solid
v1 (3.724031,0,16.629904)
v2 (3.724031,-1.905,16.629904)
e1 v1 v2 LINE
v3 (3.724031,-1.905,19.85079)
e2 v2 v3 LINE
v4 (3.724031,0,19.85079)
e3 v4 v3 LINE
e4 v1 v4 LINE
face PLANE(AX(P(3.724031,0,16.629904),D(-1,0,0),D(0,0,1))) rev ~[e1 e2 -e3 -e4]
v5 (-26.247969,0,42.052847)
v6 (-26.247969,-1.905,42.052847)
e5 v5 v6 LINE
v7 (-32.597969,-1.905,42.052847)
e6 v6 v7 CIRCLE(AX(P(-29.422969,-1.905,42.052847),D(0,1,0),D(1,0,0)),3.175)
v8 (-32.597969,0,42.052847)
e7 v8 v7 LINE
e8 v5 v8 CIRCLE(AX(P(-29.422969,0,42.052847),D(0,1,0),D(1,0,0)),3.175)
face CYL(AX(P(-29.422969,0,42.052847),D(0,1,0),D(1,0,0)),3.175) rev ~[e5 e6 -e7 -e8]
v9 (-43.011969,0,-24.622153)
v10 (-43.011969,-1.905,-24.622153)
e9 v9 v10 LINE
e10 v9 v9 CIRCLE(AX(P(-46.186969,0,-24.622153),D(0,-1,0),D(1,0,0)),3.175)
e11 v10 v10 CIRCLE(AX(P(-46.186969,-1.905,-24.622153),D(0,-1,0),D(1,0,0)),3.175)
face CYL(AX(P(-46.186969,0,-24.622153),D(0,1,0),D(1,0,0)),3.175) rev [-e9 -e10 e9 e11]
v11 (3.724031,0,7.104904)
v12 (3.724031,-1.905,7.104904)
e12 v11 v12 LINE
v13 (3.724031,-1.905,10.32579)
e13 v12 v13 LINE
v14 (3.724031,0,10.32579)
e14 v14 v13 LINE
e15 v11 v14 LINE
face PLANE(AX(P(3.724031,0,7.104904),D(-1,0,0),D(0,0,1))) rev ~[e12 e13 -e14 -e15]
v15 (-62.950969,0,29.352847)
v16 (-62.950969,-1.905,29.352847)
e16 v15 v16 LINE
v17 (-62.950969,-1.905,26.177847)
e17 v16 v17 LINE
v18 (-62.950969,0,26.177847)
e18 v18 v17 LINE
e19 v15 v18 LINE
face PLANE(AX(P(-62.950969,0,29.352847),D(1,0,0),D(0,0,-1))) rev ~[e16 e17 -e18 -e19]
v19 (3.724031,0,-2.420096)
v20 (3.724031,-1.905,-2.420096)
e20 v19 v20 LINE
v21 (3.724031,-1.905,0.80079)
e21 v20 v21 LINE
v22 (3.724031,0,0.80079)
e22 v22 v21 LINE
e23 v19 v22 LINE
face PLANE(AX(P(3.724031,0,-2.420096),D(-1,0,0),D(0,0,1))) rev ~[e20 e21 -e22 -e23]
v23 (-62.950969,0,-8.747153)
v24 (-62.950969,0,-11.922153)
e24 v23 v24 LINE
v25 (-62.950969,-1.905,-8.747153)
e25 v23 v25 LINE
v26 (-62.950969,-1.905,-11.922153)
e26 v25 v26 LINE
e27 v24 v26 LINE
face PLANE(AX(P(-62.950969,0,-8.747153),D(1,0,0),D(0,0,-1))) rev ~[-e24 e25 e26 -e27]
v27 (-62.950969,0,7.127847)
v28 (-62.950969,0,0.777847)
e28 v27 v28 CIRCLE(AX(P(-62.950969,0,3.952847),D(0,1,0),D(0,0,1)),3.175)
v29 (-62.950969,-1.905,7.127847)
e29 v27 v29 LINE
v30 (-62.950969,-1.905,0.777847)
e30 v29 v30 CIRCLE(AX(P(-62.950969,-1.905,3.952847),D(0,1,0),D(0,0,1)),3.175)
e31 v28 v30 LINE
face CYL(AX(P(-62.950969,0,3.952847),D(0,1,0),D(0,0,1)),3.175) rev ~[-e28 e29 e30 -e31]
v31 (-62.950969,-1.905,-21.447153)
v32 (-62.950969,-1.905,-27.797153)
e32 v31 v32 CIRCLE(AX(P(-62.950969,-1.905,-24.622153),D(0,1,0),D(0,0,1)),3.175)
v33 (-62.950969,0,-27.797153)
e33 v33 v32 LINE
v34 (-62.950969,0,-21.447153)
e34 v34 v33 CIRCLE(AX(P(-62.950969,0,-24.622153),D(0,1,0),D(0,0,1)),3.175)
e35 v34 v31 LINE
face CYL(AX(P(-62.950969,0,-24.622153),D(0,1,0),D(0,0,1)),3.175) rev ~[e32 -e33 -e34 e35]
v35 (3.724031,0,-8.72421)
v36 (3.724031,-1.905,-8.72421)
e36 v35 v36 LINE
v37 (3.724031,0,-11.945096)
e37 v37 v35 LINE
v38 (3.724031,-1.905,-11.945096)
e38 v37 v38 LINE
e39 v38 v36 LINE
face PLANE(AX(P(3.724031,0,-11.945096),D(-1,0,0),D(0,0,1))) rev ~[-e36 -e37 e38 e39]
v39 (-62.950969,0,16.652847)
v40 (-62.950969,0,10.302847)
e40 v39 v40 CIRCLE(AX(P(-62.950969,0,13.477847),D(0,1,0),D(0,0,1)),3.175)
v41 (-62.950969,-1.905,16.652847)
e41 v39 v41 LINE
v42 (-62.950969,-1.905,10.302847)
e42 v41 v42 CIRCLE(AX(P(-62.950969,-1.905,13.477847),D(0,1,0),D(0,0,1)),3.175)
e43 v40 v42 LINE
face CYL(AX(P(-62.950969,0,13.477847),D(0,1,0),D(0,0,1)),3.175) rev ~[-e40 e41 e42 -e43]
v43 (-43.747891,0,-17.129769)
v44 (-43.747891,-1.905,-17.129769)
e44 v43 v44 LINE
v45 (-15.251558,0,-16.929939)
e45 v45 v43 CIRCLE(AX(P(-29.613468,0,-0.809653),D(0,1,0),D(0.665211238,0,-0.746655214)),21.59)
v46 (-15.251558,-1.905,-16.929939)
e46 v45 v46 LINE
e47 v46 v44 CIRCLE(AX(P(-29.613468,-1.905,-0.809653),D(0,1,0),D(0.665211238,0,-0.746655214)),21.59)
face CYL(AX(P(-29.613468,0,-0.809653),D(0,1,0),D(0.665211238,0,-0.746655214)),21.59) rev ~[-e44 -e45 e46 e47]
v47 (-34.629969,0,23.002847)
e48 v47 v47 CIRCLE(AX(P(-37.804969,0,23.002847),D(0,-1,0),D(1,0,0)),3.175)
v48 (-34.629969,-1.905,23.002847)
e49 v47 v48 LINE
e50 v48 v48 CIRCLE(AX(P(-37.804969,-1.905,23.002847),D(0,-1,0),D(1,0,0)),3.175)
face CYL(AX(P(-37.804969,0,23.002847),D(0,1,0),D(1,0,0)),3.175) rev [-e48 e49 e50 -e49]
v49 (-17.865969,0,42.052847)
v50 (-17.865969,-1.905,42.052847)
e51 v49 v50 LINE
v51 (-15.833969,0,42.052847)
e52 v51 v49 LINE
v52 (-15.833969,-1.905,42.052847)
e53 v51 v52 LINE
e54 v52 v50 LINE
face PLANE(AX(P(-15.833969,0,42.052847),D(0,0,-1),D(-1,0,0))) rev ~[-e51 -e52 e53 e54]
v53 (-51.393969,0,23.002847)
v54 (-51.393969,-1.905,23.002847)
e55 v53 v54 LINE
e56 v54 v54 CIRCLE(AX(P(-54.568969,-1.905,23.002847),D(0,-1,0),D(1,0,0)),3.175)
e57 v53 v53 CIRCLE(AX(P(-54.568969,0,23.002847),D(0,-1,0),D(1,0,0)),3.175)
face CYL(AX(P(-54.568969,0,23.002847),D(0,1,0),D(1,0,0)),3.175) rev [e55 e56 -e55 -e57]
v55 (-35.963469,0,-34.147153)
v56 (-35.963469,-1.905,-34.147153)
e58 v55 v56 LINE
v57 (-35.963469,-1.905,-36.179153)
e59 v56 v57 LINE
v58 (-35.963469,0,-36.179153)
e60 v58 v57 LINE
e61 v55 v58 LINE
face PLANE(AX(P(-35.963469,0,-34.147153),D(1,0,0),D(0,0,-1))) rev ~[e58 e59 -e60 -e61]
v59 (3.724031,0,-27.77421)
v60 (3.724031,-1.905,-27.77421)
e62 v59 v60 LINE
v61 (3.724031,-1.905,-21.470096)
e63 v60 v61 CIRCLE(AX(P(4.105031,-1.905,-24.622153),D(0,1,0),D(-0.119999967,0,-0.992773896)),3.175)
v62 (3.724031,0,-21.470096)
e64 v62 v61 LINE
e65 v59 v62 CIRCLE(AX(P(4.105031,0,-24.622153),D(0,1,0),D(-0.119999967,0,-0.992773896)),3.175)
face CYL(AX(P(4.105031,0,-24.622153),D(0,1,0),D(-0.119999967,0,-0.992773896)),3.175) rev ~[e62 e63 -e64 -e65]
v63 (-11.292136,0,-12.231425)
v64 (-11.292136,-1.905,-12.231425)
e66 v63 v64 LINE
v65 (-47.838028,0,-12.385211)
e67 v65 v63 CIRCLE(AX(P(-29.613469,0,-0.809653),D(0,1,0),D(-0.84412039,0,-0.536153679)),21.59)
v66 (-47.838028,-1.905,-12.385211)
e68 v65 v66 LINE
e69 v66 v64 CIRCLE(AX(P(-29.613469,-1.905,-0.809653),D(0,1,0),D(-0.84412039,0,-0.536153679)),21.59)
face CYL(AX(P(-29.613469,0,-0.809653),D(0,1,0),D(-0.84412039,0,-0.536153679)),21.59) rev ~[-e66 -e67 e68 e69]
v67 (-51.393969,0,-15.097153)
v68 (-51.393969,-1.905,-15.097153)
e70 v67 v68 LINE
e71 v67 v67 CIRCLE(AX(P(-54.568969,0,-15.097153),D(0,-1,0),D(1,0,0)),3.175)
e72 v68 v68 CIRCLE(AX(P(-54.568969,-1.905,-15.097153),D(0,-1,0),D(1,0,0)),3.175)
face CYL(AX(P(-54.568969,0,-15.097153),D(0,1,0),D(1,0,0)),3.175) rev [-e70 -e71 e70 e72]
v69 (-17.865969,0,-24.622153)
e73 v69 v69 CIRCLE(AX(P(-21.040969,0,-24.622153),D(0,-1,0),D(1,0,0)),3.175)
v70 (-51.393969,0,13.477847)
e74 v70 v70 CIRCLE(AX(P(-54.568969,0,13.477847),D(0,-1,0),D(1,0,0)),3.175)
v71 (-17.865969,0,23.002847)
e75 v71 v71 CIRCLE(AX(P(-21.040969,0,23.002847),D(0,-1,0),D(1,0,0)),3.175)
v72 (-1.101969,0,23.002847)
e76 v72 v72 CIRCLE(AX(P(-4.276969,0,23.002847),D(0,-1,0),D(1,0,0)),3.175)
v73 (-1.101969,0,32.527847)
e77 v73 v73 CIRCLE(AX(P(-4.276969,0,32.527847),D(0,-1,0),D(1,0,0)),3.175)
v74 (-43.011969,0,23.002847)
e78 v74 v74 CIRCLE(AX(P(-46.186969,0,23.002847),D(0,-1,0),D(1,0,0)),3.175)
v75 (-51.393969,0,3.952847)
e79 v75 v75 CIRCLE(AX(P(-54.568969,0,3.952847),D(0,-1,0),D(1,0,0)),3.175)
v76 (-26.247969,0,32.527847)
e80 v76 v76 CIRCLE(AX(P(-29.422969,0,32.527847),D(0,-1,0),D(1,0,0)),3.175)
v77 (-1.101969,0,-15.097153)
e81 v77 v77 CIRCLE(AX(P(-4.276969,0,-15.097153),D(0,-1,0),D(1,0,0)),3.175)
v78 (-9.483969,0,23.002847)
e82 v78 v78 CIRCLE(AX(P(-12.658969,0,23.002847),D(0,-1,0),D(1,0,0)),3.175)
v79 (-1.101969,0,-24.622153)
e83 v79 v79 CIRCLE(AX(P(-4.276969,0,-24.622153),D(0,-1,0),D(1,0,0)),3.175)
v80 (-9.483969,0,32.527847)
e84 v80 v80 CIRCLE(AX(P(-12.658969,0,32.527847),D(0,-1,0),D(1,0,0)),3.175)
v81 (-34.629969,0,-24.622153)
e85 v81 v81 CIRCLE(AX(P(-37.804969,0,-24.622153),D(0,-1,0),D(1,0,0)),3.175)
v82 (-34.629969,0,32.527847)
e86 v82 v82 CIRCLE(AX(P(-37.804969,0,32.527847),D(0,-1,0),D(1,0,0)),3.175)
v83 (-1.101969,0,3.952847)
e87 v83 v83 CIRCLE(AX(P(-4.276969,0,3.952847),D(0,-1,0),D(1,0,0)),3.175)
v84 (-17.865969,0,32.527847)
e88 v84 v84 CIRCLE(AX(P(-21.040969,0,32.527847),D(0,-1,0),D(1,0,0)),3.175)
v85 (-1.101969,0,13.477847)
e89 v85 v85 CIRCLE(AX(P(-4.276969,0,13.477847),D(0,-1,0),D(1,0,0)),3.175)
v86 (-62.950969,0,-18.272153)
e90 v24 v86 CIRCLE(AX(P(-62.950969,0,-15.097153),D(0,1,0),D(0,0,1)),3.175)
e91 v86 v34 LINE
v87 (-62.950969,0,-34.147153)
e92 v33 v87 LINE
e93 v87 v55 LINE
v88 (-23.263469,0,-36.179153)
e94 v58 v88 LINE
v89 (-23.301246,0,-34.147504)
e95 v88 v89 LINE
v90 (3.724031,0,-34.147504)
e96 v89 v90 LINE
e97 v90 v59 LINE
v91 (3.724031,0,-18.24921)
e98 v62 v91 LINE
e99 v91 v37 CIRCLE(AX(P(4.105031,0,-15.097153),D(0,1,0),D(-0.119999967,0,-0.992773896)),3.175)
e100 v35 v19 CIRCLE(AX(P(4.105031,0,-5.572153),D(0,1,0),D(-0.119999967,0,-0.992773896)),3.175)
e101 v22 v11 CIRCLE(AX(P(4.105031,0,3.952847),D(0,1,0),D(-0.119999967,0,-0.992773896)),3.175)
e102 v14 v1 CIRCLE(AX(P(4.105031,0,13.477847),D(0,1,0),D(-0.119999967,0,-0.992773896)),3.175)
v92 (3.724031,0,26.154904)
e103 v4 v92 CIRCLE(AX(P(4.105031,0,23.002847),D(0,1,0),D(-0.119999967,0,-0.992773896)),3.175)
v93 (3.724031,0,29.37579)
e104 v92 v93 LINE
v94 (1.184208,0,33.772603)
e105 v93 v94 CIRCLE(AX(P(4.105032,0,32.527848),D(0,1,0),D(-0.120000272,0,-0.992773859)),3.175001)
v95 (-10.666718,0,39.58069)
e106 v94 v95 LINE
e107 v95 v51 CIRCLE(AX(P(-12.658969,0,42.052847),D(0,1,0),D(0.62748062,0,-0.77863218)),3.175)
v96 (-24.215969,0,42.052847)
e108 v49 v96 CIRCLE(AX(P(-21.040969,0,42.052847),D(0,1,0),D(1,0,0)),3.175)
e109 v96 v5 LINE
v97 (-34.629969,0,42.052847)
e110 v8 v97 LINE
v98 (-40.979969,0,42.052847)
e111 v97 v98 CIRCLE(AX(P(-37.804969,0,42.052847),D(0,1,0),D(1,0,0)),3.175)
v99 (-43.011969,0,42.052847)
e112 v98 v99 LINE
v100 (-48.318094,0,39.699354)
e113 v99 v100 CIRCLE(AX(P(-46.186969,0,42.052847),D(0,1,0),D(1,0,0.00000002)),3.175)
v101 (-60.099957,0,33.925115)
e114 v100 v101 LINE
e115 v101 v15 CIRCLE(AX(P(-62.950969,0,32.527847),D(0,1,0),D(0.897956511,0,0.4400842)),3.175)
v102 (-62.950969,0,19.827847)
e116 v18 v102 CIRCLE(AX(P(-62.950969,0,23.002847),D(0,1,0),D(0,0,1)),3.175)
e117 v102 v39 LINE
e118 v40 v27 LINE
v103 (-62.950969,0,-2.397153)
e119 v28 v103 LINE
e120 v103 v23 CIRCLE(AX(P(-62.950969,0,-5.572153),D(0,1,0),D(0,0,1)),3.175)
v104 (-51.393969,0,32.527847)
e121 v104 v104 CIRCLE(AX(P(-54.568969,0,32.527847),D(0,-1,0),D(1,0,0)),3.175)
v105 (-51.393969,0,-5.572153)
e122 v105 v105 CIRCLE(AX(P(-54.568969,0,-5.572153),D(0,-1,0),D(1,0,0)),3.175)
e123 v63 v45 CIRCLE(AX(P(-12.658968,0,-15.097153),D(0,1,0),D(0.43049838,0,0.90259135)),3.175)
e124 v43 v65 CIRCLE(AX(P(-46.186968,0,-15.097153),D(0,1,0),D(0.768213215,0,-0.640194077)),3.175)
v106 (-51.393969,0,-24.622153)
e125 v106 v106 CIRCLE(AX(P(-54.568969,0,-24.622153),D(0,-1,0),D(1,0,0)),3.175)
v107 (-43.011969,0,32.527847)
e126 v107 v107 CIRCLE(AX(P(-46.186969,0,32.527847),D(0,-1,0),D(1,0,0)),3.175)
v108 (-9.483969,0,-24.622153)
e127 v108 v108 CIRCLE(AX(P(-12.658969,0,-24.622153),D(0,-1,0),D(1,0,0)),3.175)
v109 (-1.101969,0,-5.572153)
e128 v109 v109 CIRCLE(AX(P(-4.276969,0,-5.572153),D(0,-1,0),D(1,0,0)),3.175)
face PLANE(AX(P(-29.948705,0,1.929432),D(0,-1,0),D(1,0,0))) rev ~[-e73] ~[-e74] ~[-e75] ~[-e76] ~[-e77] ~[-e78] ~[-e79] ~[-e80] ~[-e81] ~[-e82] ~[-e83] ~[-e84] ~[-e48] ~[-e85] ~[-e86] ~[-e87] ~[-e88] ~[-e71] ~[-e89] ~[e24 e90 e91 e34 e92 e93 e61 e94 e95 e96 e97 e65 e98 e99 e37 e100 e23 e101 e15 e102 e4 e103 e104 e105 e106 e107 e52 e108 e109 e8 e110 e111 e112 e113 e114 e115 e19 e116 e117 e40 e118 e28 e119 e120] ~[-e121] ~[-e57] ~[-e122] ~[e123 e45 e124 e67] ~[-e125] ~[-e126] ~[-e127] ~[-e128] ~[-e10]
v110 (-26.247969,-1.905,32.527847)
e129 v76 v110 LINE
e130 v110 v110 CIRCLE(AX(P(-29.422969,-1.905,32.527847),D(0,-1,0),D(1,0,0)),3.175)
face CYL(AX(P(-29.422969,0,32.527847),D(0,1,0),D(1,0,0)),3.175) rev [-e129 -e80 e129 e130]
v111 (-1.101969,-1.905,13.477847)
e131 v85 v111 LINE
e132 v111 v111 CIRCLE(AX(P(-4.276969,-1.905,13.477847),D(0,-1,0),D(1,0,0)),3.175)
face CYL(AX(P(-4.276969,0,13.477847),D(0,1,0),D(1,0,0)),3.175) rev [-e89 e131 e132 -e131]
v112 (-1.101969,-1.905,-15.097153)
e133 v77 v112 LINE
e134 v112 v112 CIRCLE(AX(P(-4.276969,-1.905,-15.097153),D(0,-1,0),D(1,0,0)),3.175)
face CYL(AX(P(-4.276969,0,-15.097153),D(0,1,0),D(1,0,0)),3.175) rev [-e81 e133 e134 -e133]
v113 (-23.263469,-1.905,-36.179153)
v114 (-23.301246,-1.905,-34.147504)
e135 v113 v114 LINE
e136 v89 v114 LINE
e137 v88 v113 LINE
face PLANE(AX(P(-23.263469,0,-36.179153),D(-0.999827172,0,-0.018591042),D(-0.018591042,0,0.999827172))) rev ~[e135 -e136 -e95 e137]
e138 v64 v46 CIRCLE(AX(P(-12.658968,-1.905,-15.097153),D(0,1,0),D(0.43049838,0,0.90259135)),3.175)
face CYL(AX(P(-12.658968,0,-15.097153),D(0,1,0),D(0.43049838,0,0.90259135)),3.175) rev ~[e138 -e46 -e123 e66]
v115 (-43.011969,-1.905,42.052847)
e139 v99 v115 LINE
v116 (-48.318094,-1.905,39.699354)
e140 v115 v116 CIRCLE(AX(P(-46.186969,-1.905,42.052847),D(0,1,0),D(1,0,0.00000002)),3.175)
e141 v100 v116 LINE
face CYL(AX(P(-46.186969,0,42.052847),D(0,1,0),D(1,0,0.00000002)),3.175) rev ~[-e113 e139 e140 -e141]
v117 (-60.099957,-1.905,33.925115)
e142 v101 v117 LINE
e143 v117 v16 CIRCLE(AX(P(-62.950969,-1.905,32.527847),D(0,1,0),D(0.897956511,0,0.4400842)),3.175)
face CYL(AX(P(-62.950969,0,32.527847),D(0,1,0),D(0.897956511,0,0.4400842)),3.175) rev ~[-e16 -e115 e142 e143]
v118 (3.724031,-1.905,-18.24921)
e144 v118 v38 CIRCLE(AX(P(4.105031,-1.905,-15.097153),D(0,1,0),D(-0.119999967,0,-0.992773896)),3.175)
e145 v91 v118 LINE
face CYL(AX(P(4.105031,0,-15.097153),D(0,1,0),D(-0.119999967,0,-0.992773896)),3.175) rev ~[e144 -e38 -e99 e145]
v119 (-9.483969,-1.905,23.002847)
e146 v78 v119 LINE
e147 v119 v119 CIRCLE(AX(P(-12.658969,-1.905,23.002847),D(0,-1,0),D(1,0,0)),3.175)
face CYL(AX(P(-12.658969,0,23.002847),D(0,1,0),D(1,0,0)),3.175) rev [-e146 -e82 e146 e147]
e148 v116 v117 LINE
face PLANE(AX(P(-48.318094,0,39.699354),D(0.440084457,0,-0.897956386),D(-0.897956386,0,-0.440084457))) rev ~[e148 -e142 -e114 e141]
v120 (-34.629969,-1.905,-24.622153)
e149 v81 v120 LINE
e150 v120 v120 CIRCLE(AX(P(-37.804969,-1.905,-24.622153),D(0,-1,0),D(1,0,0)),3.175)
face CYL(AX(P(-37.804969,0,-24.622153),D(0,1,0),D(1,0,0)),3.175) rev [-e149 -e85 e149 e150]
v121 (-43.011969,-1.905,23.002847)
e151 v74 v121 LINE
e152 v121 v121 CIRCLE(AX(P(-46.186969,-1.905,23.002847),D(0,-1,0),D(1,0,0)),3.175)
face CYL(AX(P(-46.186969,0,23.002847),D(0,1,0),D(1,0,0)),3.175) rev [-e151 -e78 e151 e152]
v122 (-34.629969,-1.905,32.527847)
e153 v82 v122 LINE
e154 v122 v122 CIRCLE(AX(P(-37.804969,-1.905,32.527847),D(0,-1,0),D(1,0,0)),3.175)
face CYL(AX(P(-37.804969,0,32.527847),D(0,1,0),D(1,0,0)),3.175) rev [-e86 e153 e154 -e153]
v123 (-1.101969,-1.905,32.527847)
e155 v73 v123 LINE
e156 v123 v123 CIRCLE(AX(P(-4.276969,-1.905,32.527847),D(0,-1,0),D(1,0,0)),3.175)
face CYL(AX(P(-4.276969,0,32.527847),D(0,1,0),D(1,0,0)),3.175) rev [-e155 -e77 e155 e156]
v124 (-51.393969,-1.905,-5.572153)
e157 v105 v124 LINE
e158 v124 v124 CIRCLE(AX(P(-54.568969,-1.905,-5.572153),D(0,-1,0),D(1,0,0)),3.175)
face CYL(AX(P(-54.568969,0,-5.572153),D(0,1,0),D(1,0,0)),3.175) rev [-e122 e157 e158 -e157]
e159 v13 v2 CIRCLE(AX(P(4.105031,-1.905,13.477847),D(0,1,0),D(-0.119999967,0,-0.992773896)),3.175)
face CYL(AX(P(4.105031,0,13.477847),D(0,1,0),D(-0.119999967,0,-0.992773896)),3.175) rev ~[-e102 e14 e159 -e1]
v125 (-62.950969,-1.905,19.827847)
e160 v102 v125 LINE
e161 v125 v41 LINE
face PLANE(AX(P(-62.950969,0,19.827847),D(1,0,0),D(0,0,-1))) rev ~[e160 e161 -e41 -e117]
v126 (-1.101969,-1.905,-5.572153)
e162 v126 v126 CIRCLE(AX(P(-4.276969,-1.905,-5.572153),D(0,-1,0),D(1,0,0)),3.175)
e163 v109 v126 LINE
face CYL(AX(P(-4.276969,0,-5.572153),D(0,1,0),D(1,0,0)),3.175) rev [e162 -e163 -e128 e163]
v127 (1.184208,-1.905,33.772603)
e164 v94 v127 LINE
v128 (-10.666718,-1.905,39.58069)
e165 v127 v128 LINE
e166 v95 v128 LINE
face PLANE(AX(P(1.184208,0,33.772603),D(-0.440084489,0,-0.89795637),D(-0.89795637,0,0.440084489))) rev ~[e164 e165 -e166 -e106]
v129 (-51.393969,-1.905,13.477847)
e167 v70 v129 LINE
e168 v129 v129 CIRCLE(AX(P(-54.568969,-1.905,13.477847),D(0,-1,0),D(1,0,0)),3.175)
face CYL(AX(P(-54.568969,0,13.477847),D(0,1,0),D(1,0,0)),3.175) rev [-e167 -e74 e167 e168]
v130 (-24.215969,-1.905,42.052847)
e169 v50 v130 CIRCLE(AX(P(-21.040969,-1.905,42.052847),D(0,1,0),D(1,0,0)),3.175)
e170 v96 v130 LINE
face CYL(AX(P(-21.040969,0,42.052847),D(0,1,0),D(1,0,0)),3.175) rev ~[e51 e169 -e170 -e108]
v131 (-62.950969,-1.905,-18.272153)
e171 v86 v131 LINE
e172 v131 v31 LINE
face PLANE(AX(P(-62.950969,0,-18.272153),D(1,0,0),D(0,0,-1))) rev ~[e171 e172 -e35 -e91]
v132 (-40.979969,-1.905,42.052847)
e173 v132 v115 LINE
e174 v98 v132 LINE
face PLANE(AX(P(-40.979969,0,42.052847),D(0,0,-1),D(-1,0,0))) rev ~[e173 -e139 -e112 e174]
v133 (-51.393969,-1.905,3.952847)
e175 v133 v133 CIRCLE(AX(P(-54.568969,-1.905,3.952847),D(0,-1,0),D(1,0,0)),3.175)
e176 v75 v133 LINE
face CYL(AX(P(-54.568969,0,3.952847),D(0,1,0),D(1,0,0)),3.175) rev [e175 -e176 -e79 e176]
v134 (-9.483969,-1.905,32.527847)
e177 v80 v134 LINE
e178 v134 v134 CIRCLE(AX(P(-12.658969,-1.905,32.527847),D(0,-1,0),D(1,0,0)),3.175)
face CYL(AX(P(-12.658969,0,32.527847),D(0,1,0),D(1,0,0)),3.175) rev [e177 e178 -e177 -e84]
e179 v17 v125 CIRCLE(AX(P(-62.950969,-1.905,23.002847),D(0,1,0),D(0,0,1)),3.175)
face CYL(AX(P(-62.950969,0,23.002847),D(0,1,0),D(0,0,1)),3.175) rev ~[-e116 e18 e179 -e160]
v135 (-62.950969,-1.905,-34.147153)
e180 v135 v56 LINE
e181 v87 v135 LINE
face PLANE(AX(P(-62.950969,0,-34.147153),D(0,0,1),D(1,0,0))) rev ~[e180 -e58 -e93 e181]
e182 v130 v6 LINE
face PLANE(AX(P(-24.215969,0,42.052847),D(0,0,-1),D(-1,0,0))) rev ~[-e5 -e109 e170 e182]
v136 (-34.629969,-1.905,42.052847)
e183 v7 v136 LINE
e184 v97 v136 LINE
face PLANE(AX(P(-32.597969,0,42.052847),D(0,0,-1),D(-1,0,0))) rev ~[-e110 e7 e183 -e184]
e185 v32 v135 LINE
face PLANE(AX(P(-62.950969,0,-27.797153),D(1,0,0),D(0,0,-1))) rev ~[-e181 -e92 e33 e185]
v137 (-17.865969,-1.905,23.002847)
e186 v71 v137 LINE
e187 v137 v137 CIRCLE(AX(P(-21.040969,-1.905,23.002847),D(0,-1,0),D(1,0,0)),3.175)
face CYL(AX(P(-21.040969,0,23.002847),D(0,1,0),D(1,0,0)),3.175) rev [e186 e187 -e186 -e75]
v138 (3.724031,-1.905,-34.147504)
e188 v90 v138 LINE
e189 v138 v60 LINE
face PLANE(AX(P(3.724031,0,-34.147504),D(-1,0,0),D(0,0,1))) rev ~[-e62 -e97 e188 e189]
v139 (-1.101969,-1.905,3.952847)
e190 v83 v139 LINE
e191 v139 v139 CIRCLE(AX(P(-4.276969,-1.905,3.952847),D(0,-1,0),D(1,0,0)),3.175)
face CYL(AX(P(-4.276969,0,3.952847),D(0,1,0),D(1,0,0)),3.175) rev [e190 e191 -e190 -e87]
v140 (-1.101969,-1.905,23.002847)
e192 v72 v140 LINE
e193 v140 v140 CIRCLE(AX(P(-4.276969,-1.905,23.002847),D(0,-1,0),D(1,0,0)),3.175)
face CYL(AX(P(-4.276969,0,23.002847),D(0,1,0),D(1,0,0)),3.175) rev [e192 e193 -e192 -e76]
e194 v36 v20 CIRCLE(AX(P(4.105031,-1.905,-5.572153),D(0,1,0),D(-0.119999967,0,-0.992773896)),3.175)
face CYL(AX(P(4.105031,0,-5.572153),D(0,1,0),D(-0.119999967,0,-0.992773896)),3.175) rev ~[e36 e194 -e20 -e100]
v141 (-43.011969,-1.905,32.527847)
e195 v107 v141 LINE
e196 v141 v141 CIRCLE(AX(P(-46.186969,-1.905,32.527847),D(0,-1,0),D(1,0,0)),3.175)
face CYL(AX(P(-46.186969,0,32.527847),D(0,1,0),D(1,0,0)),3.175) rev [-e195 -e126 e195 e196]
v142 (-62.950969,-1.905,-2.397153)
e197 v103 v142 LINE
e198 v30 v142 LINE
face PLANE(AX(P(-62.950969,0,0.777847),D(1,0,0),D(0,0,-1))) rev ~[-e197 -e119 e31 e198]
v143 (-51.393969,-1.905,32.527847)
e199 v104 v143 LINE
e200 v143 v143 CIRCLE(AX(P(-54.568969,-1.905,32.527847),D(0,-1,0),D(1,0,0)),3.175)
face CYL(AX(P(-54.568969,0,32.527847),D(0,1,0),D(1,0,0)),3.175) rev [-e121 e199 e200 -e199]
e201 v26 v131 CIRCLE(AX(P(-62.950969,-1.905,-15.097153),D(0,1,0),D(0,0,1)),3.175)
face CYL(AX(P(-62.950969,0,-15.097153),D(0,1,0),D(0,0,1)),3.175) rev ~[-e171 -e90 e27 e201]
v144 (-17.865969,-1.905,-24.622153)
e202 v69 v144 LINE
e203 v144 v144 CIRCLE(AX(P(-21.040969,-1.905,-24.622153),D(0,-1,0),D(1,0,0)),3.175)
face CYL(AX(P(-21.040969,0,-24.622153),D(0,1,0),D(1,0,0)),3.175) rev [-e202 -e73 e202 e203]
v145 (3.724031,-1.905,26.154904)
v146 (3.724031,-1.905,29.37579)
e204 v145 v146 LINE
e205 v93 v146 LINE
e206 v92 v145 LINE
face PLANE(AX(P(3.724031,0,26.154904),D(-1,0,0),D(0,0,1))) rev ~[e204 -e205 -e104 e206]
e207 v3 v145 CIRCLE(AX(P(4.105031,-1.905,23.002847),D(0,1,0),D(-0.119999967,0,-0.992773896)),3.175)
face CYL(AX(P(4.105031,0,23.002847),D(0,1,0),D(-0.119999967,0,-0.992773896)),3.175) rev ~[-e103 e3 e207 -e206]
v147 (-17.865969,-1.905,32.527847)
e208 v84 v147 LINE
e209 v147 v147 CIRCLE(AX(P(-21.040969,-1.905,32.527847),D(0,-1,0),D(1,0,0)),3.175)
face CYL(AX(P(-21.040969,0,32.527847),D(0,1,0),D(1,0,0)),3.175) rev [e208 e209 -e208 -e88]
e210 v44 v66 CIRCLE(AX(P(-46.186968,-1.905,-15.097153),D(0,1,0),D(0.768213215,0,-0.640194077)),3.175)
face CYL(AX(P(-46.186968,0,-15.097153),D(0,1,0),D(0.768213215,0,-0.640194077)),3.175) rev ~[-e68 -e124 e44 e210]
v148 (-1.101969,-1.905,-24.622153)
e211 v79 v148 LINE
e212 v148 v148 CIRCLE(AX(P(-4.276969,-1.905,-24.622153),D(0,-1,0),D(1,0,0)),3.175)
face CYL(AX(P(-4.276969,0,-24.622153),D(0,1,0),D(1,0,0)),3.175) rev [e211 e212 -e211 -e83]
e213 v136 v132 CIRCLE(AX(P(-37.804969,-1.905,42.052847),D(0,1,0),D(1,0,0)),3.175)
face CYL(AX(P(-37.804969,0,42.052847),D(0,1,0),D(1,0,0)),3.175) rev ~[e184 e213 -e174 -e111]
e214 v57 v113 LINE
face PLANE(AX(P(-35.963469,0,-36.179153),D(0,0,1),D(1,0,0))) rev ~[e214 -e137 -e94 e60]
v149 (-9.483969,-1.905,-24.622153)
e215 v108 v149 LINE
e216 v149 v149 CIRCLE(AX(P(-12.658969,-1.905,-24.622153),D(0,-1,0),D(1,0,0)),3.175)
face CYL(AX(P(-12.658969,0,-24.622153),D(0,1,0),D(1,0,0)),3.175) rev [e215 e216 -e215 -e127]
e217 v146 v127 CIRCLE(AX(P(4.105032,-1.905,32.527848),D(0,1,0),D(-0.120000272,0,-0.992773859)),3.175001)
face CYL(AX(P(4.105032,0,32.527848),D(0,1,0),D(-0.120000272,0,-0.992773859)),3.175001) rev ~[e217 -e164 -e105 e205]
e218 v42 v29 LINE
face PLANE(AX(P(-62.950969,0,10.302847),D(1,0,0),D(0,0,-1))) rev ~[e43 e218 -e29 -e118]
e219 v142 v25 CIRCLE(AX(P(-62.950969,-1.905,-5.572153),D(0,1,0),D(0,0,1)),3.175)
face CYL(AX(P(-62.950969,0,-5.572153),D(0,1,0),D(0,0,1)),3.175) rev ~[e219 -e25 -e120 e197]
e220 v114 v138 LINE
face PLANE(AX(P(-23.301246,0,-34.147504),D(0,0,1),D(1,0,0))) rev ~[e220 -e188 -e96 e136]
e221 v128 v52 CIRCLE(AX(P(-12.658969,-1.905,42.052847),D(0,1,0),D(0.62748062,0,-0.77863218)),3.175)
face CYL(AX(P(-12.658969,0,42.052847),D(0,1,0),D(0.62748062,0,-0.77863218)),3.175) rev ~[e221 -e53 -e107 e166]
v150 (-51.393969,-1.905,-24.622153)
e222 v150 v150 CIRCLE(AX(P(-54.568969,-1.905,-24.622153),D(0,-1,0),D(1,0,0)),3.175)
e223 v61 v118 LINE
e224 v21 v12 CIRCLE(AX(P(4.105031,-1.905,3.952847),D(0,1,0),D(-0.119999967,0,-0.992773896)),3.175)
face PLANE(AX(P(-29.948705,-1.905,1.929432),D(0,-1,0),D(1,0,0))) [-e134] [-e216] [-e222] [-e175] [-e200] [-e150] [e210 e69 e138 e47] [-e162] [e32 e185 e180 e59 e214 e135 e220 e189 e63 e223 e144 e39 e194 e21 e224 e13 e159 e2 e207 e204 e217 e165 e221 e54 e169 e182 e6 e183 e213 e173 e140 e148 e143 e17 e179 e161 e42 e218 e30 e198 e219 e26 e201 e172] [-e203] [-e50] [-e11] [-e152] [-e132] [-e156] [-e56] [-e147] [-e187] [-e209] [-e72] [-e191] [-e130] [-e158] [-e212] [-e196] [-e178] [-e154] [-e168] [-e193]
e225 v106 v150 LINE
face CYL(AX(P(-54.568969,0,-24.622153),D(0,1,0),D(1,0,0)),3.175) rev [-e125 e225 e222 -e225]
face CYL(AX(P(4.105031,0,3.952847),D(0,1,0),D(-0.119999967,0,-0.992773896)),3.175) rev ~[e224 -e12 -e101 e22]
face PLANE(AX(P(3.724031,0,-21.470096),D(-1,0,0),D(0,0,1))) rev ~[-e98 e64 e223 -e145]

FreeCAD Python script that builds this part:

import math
import FreeCAD as App
import Part
import Sketcher
from FreeCAD import Vector
Q = App.Units.Quantity

doc = App.newDocument("Part")
body = doc.addObject("PartDesign::Body", "Body")

sketch1 = body.newObject("Sketcher::SketchObject", "Sketch")
sketch1.AttachmentSupport = (doc.getObject("XZ_Plane"), [""])
sketch1.MapMode = "FlatFace"
sketch1.addGeometry([
    Part.LineSegment(Vector(-62.950969, -34.147153, 0), Vector(-35.963469, -34.147153, 0)),
    Part.LineSegment(Vector(-35.963469, -34.147153, 0), Vector(-35.963469, -36.179153, 0)),
    Part.LineSegment(Vector(-35.963469, -36.179153, 0), Vector(-23.263469, -36.179153, 0)),
    Part.LineSegment(Vector(-23.263469, -36.179153, 0), Vector(-23.301246, -34.147504, 0)),
    Part.LineSegment(Vector(-23.301246, -34.147504, 0), Vector(3.724031, -34.147504, 0)),
    Part.LineSegment(Vector(3.724031, -34.147504, 0), Vector(3.724031, -27.77421, 0)),
    Part.ArcOfCircle(Part.Circle(Vector(4.105031, -24.622153, 0), Vector(0, 0, 1), 3.175), math.radians(96.892101), math.radians(263.107899)),
    Part.LineSegment(Vector(3.724031, -21.470096, 0), Vector(3.724031, -18.24921, 0)),
    Part.ArcOfCircle(Part.Circle(Vector(4.105031, -15.097153, 0), Vector(0, 0, 1), 3.175), math.radians(96.892101), math.radians(263.107899)),
    Part.LineSegment(Vector(3.724031, -11.945096, 0), Vector(3.724031, -8.72421, 0)),
    Part.ArcOfCircle(Part.Circle(Vector(4.105031, -5.572153, 0), Vector(0, 0, 1), 3.175), math.radians(96.892101), math.radians(263.107899)),
    Part.LineSegment(Vector(3.724031, -2.420096, 0), Vector(3.724031, 0.80079, 0)),
    Part.ArcOfCircle(Part.Circle(Vector(4.105031, 3.952847, 0), Vector(0, 0, 1), 3.175), math.radians(96.892101), math.radians(263.107899)),
    Part.LineSegment(Vector(3.724031, 7.104904, 0), Vector(3.724031, 10.32579, 0)),
    Part.ArcOfCircle(Part.Circle(Vector(4.105031, 13.477847, 0), Vector(0, 0, 1), 3.175), math.radians(96.892101), math.radians(263.107899)),
    Part.LineSegment(Vector(3.724031, 16.629904, 0), Vector(3.724031, 19.85079, 0)),
    Part.ArcOfCircle(Part.Circle(Vector(4.105031, 23.002847, 0), Vector(0, 0, 1), 3.175), math.radians(96.892101), math.radians(263.107899)),
    Part.LineSegment(Vector(3.724031, 26.154904, 0), Vector(3.724031, 29.37579, 0)),
    Part.ArcOfCircle(Part.Circle(Vector(4.105032, 32.527848, 0), Vector(0, 0, 1), 3.175001), math.radians(156.917952), math.radians(263.107882)),
    Part.LineSegment(Vector(1.184208, 33.772603, 0), Vector(-10.666718, 39.58069, 0)),
    Part.ArcOfCircle(Part.Circle(Vector(-12.658969, 42.052847, 0), Vector(0, 0, 1), 3.175), math.radians(-179.999997), math.radians(-51.135509)),
    Part.LineSegment(Vector(-15.833969, 42.052847, 0), Vector(-17.865969, 42.052847, 0)),
    Part.ArcOfCircle(Part.Circle(Vector(-21.040969, 42.052847, 0), Vector(0, 0, 1), 3.175), math.radians(180), math.radians(360)),
    Part.LineSegment(Vector(-24.215969, 42.052847, 0), Vector(-26.247969, 42.052847, 0)),
    Part.ArcOfCircle(Part.Circle(Vector(-29.422969, 42.052847, 0), Vector(0, 0, 1), 3.175), math.radians(180), math.radians(360)),
    Part.LineSegment(Vector(-32.597969, 42.052847, 0), Vector(-34.629969, 42.052847, 0)),
    Part.ArcOfCircle(Part.Circle(Vector(-37.804969, 42.052847, 0), Vector(0, 0, 1), 3.175), math.radians(180), math.radians(360)),
    Part.LineSegment(Vector(-40.979969, 42.052847, 0), Vector(-43.011969, 42.052847, 0)),
    Part.ArcOfCircle(Part.Circle(Vector(-46.186969, 42.052847, 0), Vector(0, 0, 1), 3.175), math.radians(-132.16134), math.radians(0.000001)),
    Part.LineSegment(Vector(-48.318094, 39.699354, 0), Vector(-60.099957, 33.925115, 0)),
    Part.ArcOfCircle(Part.Circle(Vector(-62.950969, 32.527847, 0), Vector(0, 0, 1), 3.175), math.radians(-89.999994), math.radians(26.109254)),
    Part.LineSegment(Vector(-62.950969, 29.352847, 0), Vector(-62.950969, 26.177847, 0)),
    Part.ArcOfCircle(Part.Circle(Vector(-62.950969, 23.002847, 0), Vector(0, 0, 1), 3.175), math.radians(-90), math.radians(90)),
    Part.LineSegment(Vector(-62.950969, 19.827847, 0), Vector(-62.950969, 16.652847, 0)),
    Part.ArcOfCircle(Part.Circle(Vector(-62.950969, 13.477847, 0), Vector(0, 0, 1), 3.175), math.radians(-90), math.radians(90)),
    Part.LineSegment(Vector(-62.950969, 10.302847, 0), Vector(-62.950969, 7.127847, 0)),
    Part.ArcOfCircle(Part.Circle(Vector(-62.950969, 3.952847, 0), Vector(0, 0, 1), 3.175), math.radians(-90), math.radians(90)),
    Part.LineSegment(Vector(-62.950969, 0.777847, 0), Vector(-62.950969, -2.397153, 0)),
    Part.ArcOfCircle(Part.Circle(Vector(-62.950969, -5.572153, 0), Vector(0, 0, 1), 3.175), math.radians(-90), math.radians(90)),
    Part.LineSegment(Vector(-62.950969, -8.747153, 0), Vector(-62.950969, -11.922153, 0)),
    Part.ArcOfCircle(Part.Circle(Vector(-62.950969, -15.097153, 0), Vector(0, 0, 1), 3.175), math.radians(-90), math.radians(90)),
    Part.LineSegment(Vector(-62.950969, -18.272153, 0), Vector(-62.950969, -21.447153, 0)),
    Part.ArcOfCircle(Part.Circle(Vector(-62.950969, -24.622153, 0), Vector(0, 0, 1), 3.175), math.radians(-90), math.radians(90)),
    Part.LineSegment(Vector(-62.950969, -27.797153, 0), Vector(-62.950969, -34.147153, 0)),
    Part.Circle(Vector(-54.568969, -24.622153, 0), Vector(0, 0, 1), 3.175),
    Part.Circle(Vector(-46.186969, -24.622153, 0), Vector(0, 0, 1), 3.175),
    Part.Circle(Vector(-54.568969, -15.097153, 0), Vector(0, 0, 1), 3.175),
    Part.Circle(Vector(-37.804969, -24.622153, 0), Vector(0, 0, 1), 3.175),
    Part.Circle(Vector(-54.568969, -5.572153, 0), Vector(0, 0, 1), 3.175),
    Part.ArcOfCircle(Part.Circle(Vector(-46.186968, -15.097153, 0), Vector(0, 0, 1), 3.175), math.radians(121.333514), math.radians(320.193707)),
    Part.ArcOfCircle(Part.Circle(Vector(-29.613469, -0.809653, 0), Vector(0, 0, 1), 21.59), math.radians(-31.939984), math.radians(212.422185)),
    Part.ArcOfCircle(Part.Circle(Vector(-12.658968, -15.097153, 0), Vector(0, 0, 1), 3.175), math.radians(-144.742261), math.radians(64.500807)),
    Part.ArcOfCircle(Part.Circle(Vector(-29.613468, -0.809653, 0), Vector(0, 0, 1), 21.59), math.radians(-130.894975), math.radians(-48.301467)),
    Part.Circle(Vector(-21.040969, -24.622153, 0), Vector(0, 0, 1), 3.175),
    Part.Circle(Vector(-12.658969, -24.622153, 0), Vector(0, 0, 1), 3.175),
    Part.Circle(Vector(-4.276969, -24.622153, 0), Vector(0, 0, 1), 3.175),
    Part.Circle(Vector(-4.276969, -15.097153, 0), Vector(0, 0, 1), 3.175),
    Part.Circle(Vector(-4.276969, -5.572153, 0), Vector(0, 0, 1), 3.175),
    Part.Circle(Vector(-54.568969, 3.952847, 0), Vector(0, 0, 1), 3.175),
    Part.Circle(Vector(-54.568969, 13.477847, 0), Vector(0, 0, 1), 3.175),
    Part.Circle(Vector(-54.568969, 23.002847, 0), Vector(0, 0, 1), 3.175),
    Part.Circle(Vector(-46.186969, 23.002847, 0), Vector(0, 0, 1), 3.175),
    Part.Circle(Vector(-54.568969, 32.527847, 0), Vector(0, 0, 1), 3.175),
    Part.Circle(Vector(-46.186969, 32.527847, 0), Vector(0, 0, 1), 3.175),
    Part.Circle(Vector(-37.804969, 23.002847, 0), Vector(0, 0, 1), 3.175),
    Part.Circle(Vector(-37.804969, 32.527847, 0), Vector(0, 0, 1), 3.175),
    Part.Circle(Vector(-4.276969, 3.952847, 0), Vector(0, 0, 1), 3.175),
    Part.Circle(Vector(-4.276969, 13.477847, 0), Vector(0, 0, 1), 3.175),
    Part.Circle(Vector(-21.040969, 23.002847, 0), Vector(0, 0, 1), 3.175),
    Part.Circle(Vector(-29.422969, 32.527847, 0), Vector(0, 0, 1), 3.175),
    Part.Circle(Vector(-21.040969, 32.527847, 0), Vector(0, 0, 1), 3.175),
    Part.Circle(Vector(-12.658969, 23.002847, 0), Vector(0, 0, 1), 3.175),
    Part.Circle(Vector(-4.276969, 23.002847, 0), Vector(0, 0, 1), 3.175),
    Part.Circle(Vector(-12.658969, 32.527847, 0), Vector(0, 0, 1), 3.175),
    Part.Circle(Vector(-4.276969, 32.527847, 0), Vector(0, 0, 1), 3.175),
], False)
sketch1.addConstraint([
    Sketcher.Constraint("Coincident", 0, 2, 1, 1),
    Sketcher.Constraint("Coincident", 1, 2, 2, 1),
    Sketcher.Constraint("Coincident", 2, 2, 3, 1),
    Sketcher.Constraint("Coincident", 3, 2, 4, 1),
    Sketcher.Constraint("Coincident", 4, 2, 5, 1),
    Sketcher.Constraint("Coincident", 5, 2, 6, 2),
    Sketcher.Constraint("Coincident", 6, 1, 7, 1),
    Sketcher.Constraint("Coincident", 7, 2, 8, 2),
    Sketcher.Constraint("Coincident", 8, 1, 9, 1),
    Sketcher.Constraint("Coincident", 9, 2, 10, 2),
    Sketcher.Constraint("Coincident", 10, 1, 11, 1),
    Sketcher.Constraint("Coincident", 11, 2, 12, 2),
    Sketcher.Constraint("Coincident", 12, 1, 13, 1),
    Sketcher.Constraint("Coincident", 13, 2, 14, 2),
    Sketcher.Constraint("Coincident", 14, 1, 15, 1),
    Sketcher.Constraint("Coincident", 15, 2, 16, 2),
    Sketcher.Constraint("Coincident", 16, 1, 17, 1),
    Sketcher.Constraint("Coincident", 17, 2, 18, 2),
    Sketcher.Constraint("Coincident", 18, 1, 19, 1),
    Sketcher.Constraint("Coincident", 19, 2, 20, 2),
    Sketcher.Constraint("Coincident", 20, 1, 21, 1),
    Sketcher.Constraint("Coincident", 21, 2, 22, 2),
    Sketcher.Constraint("Coincident", 22, 1, 23, 1),
    Sketcher.Constraint("Coincident", 23, 2, 24, 2),
    Sketcher.Constraint("Coincident", 24, 1, 25, 1),
    Sketcher.Constraint("Coincident", 25, 2, 26, 2),
    Sketcher.Constraint("Coincident", 26, 1, 27, 1),
    Sketcher.Constraint("Coincident", 27, 2, 28, 2),
    Sketcher.Constraint("Coincident", 28, 1, 29, 1),
    Sketcher.Constraint("Coincident", 29, 2, 30, 2),
    Sketcher.Constraint("Coincident", 30, 1, 31, 1),
    Sketcher.Constraint("Coincident", 31, 2, 32, 2),
    Sketcher.Constraint("Coincident", 32, 1, 33, 1),
    Sketcher.Constraint("Coincident", 33, 2, 34, 2),
    Sketcher.Constraint("Coincident", 34, 1, 35, 1),
    Sketcher.Constraint("Coincident", 35, 2, 36, 2),
    Sketcher.Constraint("Coincident", 36, 1, 37, 1),
    Sketcher.Constraint("Coincident", 37, 2, 38, 2),
    Sketcher.Constraint("Coincident", 38, 1, 39, 1),
    Sketcher.Constraint("Coincident", 39, 2, 40, 2),
    Sketcher.Constraint("Coincident", 40, 1, 41, 1),
    Sketcher.Constraint("Coincident", 41, 2, 42, 2),
    Sketcher.Constraint("Coincident", 42, 1, 43, 1),
    Sketcher.Constraint("Coincident", 43, 2, 0, 1),
    Sketcher.Constraint("Coincident", 49, 1, 50, 2),
    Sketcher.Constraint("Coincident", 50, 1, 51, 2),
    Sketcher.Constraint("Coincident", 51, 1, 52, 2),
    Sketcher.Constraint("Coincident", 52, 1, 49, 2),
    Sketcher.Constraint("Horizontal", 0),
    Sketcher.Constraint("Vertical", 1),
    Sketcher.Constraint("Horizontal", 2),
    Sketcher.Constraint("Horizontal", 4),
    Sketcher.Constraint("Vertical", 5),
    Sketcher.Constraint("Vertical", 7),
    Sketcher.Constraint("Vertical", 9),
    Sketcher.Constraint("Vertical", 11),
    Sketcher.Constraint("Vertical", 13),
    Sketcher.Constraint("Vertical", 15),
    Sketcher.Constraint("Vertical", 17),
    Sketcher.Constraint("Horizontal", 21),
    Sketcher.Constraint("Horizontal", 23),
    Sketcher.Constraint("Horizontal", 25),
    Sketcher.Constraint("Horizontal", 27),
    Sketcher.Constraint("Vertical", 31),
    Sketcher.Constraint("Vertical", 33),
    Sketcher.Constraint("Vertical", 35),
    Sketcher.Constraint("Vertical", 37),
    Sketcher.Constraint("Vertical", 39),
    Sketcher.Constraint("Vertical", 41),
    Sketcher.Constraint("Vertical", 43),
    Sketcher.Constraint("Coincident", 52, 3, 50, 3),
    Sketcher.Constraint("Diameter", 44, Q("0.25 in")),
    Sketcher.Constraint("Diameter", 45, Q("0.25 in")),
    Sketcher.Constraint("Diameter", 46, Q("0.25 in")),
    Sketcher.Constraint("Diameter", 47, Q("0.25 in")),
    Sketcher.Constraint("Diameter", 48, Q("0.25 in")),
    Sketcher.Constraint("Diameter", 53, Q("0.25 in")),
    Sketcher.Constraint("Diameter", 54, Q("0.25 in")),
    Sketcher.Constraint("Diameter", 55, Q("0.25 in")),
    Sketcher.Constraint("Diameter", 56, Q("0.25 in")),
    Sketcher.Constraint("Diameter", 57, Q("0.25 in")),
    Sketcher.Constraint("Diameter", 58, Q("0.25 in")),
    Sketcher.Constraint("Diameter", 59, Q("0.25 in")),
    Sketcher.Constraint("Diameter", 60, Q("0.25 in")),
    Sketcher.Constraint("Diameter", 61, Q("0.25 in")),
    Sketcher.Constraint("Diameter", 62, Q("0.25 in")),
    Sketcher.Constraint("Diameter", 63, Q("0.25 in")),
    Sketcher.Constraint("Diameter", 64, Q("0.25 in")),
    Sketcher.Constraint("Diameter", 65, Q("0.25 in")),
    Sketcher.Constraint("Diameter", 66, Q("0.25 in")),
    Sketcher.Constraint("Diameter", 67, Q("0.25 in")),
    Sketcher.Constraint("Diameter", 68, Q("0.25 in")),
    Sketcher.Constraint("Diameter", 69, Q("0.25 in")),
    Sketcher.Constraint("Diameter", 70, Q("0.25 in")),
    Sketcher.Constraint("Diameter", 71, Q("0.25 in")),
    Sketcher.Constraint("Diameter", 72, Q("0.25 in")),
    Sketcher.Constraint("Diameter", 73, Q("0.25 in")),
    Sketcher.Constraint("Diameter", 74, Q("0.25 in")),
    Sketcher.Constraint("Radius", 50, Q("0.85 in")),
    Sketcher.Constraint("Radius", 52, Q("0.85 in")),
    Sketcher.Constraint("DistanceX", 2, 1, 2, 2, Q("0.5 in")),
    Sketcher.Constraint("Radius", 6, Q("0.125 in")),
    Sketcher.Constraint("Radius", 8, Q("0.125 in")),
    Sketcher.Constraint("Radius", 10, Q("0.125 in")),
    Sketcher.Constraint("Radius", 12, Q("0.125 in")),
    Sketcher.Constraint("Radius", 14, Q("0.125 in")),
    Sketcher.Constraint("Radius", 16, Q("0.125 in")),
    Sketcher.Constraint("Radius", 18, Q("0.125 in")),
    Sketcher.Constraint("Radius", 20, Q("0.125 in")),
    Sketcher.Constraint("Radius", 22, Q("0.125 in")),
    Sketcher.Constraint("Radius", 24, Q("0.125 in")),
    Sketcher.Constraint("Radius", 26, Q("0.125 in")),
    Sketcher.Constraint("Radius", 28, Q("0.125 in")),
    Sketcher.Constraint("Radius", 30, Q("0.125 in")),
    Sketcher.Constraint("Radius", 32, Q("0.125 in")),
    Sketcher.Constraint("Radius", 34, Q("0.125 in")),
    Sketcher.Constraint("Radius", 36, Q("0.125 in")),
    Sketcher.Constraint("Radius", 38, Q("0.125 in")),
    Sketcher.Constraint("Radius", 40, Q("0.125 in")),
    Sketcher.Constraint("Radius", 42, Q("0.125 in")),
    Sketcher.Constraint("Radius", 49, Q("0.125 in")),
    Sketcher.Constraint("Radius", 51, Q("0.125 in")),
    Sketcher.Constraint("DistanceX", 21, 2, 21, 1, Q("0.08 in")),
    Sketcher.Constraint("DistanceX", 23, 2, 23, 1, Q("0.08 in")),
    Sketcher.Constraint("DistanceX", 25, 2, 25, 1, Q("0.08 in")),
    Sketcher.Constraint("DistanceX", 27, 2, 27, 1, Q("0.08 in")),
    Sketcher.Constraint("DistanceY", 1, 2, 1, 1, Q("0.08 in")),
    Sketcher.Constraint("DistanceY", 43, 2, 43, 1, Q("0.25 in")),
    Sketcher.Constraint("Distance", 3, Q("0.08 in")),
    Sketcher.Constraint("DistanceX", 0, 1, 0, 2, Q("1.0625 in")),
    Sketcher.Constraint("DistanceY", 31, 2, 31, 1, Q("0.125 in")),
    Sketcher.Constraint("DistanceY", 33, 2, 33, 1, Q("0.125 in")),
    Sketcher.Constraint("DistanceY", 35, 2, 35, 1, Q("0.125 in")),
    Sketcher.Constraint("DistanceY", 37, 2, 37, 1, Q("0.125 in")),
    Sketcher.Constraint("DistanceY", 39, 2, 39, 1, Q("0.125 in")),
    Sketcher.Constraint("DistanceY", 41, 2, 41, 1, Q("0.125 in")),
    Sketcher.Constraint("Distance", 29, 13.120752),
    Sketcher.Constraint("DistanceX", 4, 1, 4, 2, 27.025277),
    Sketcher.Constraint("DistanceY", 5, 1, 5, 2, 6.373294),
    Sketcher.Constraint("DistanceY", 7, 1, 7, 2, 3.220886),
    Sketcher.Constraint("DistanceY", 9, 1, 9, 2, 3.220886),
    Sketcher.Constraint("DistanceY", 11, 1, 11, 2, 3.220886),
    Sketcher.Constraint("DistanceY", 13, 1, 13, 2, 3.220886),
    Sketcher.Constraint("DistanceY", 15, 1, 15, 2, 3.220886),
    Sketcher.Constraint("DistanceY", 17, 1, 17, 2, 3.220886),
    Sketcher.Constraint("DistanceX", -1, 1, 6, 3, 4.105031),
    Sketcher.Constraint("DistanceX", -1, 1, 8, 3, 4.105031),
    Sketcher.Constraint("DistanceX", -1, 1, 10, 3, 4.105031),
    Sketcher.Constraint("DistanceX", -1, 1, 12, 3, 4.105031),
    Sketcher.Constraint("DistanceX", -1, 1, 14, 3, 4.105031),
    Sketcher.Constraint("DistanceX", -1, 1, 16, 3, 4.105031),
    Sketcher.Constraint("DistanceX", -1, 1, 18, 3, 4.105032),
    Sketcher.Constraint("DistanceX", 20, 3, -1, 1, 12.658969),
    Sketcher.Constraint("DistanceX", 30, 3, -1, 1, 62.950969),
    Sketcher.Constraint("DistanceX", 32, 3, -1, 1, 62.950969),
    Sketcher.Constraint("DistanceX", 34, 3, -1, 1, 62.950969),
    Sketcher.Constraint("DistanceX", 36, 3, -1, 1, 62.950969),
    Sketcher.Constraint("DistanceX", 38, 3, -1, 1, 62.950969),
    Sketcher.Constraint("DistanceX", 40, 3, -1, 1, 62.950969),
    Sketcher.Constraint("DistanceX", 42, 3, -1, 1, 62.950969),
    Sketcher.Constraint("DistanceX", 44, 3, -1, 1, 54.568969),
    Sketcher.Constraint("DistanceX", 45, 3, -1, 1, 46.186969),
    Sketcher.Constraint("DistanceX", 46, 3, -1, 1, 54.568969),
    Sketcher.Constraint("DistanceX", 47, 3, -1, 1, 37.804969),
    Sketcher.Constraint("DistanceX", 48, 3, -1, 1, 54.568969),
    Sketcher.Constraint("DistanceX", 49, 3, -1, 1, 46.186968),
    Sketcher.Constraint("DistanceX", 50, 3, -1, 1, 29.613469),
    Sketcher.Constraint("DistanceX", 51, 3, -1, 1, 12.658968),
    Sketcher.Constraint("DistanceX", 53, 3, -1, 1, 21.040969),
    Sketcher.Constraint("DistanceX", 54, 3, -1, 1, 12.658969),
    Sketcher.Constraint("DistanceX", 55, 3, -1, 1, 4.276969),
    Sketcher.Constraint("DistanceX", 56, 3, -1, 1, 4.276969),
    Sketcher.Constraint("DistanceX", 57, 3, -1, 1, 4.276969),
    Sketcher.Constraint("DistanceX", 58, 3, -1, 1, 54.568969),
    Sketcher.Constraint("DistanceX", 59, 3, -1, 1, 54.568969),
    Sketcher.Constraint("DistanceX", 60, 3, -1, 1, 54.568969),
    Sketcher.Constraint("DistanceX", 61, 3, -1, 1, 46.186969),
    Sketcher.Constraint("DistanceX", 62, 3, -1, 1, 54.568969),
    Sketcher.Constraint("DistanceX", 63, 3, -1, 1, 46.186969),
    Sketcher.Constraint("DistanceX", 64, 3, -1, 1, 37.804969),
    Sketcher.Constraint("DistanceX", 65, 3, -1, 1, 37.804969),
    Sketcher.Constraint("DistanceX", 66, 3, -1, 1, 4.276969),
    Sketcher.Constraint("DistanceX", 67, 3, -1, 1, 4.276969),
    Sketcher.Constraint("DistanceX", 68, 3, -1, 1, 21.040969),
    Sketcher.Constraint("DistanceX", 69, 3, -1, 1, 29.422969),
    Sketcher.Constraint("DistanceX", 70, 3, -1, 1, 21.040969),
    Sketcher.Constraint("DistanceX", 71, 3, -1, 1, 12.658969),
    Sketcher.Constraint("DistanceX", 72, 3, -1, 1, 4.276969),
    Sketcher.Constraint("DistanceX", 73, 3, -1, 1, 12.658969),
    Sketcher.Constraint("DistanceX", 74, 3, -1, 1, 4.276969),
    Sketcher.Constraint("DistanceX", 0, 2, -1, 1, 35.963469),
    Sketcher.Constraint("DistanceX", -1, 1, 4, 2, 3.724031),
    Sketcher.Constraint("DistanceY", 5, 2, -1, 1, 27.77421),
    Sketcher.Constraint("DistanceX", -1, 1, 6, 1, 3.724031),
    Sketcher.Constraint("DistanceX", -1, 1, 8, 1, 3.724031),
    Sketcher.Constraint("DistanceX", -1, 1, 10, 1, 3.724031),
    Sketcher.Constraint("DistanceX", -1, 1, 12, 1, 3.724031),
    Sketcher.Constraint("DistanceX", -1, 1, 14, 1, 3.724031),
    Sketcher.Constraint("DistanceX", -1, 1, 16, 1, 3.724031),
    Sketcher.Constraint("DistanceY", -1, 1, 19, 2, 39.58069),
    Sketcher.Constraint("DistanceX", 30, 1, -1, 1, 62.950969),
    Sketcher.Constraint("DistanceX", 32, 1, -1, 1, 62.950969),
    Sketcher.Constraint("DistanceX", 34, 1, -1, 1, 62.950969),
    Sketcher.Constraint("DistanceX", 36, 1, -1, 1, 62.950969),
    Sketcher.Constraint("DistanceX", 38, 1, -1, 1, 62.950969),
    Sketcher.Constraint("DistanceX", 40, 1, -1, 1, 62.950969),
    Sketcher.Constraint("DistanceY", 49, 1, -1, 1, 12.385211),
    Sketcher.Constraint("DistanceY", 51, 1, -1, 1, 16.929939),
    Sketcher.Constraint("DistanceX", 52, 1, -1, 1, 43.747891),
    Sketcher.Constraint("Distance", 19, 13.197663),
    Sketcher.Constraint("DistanceY", -1, 1, 20, 3, 42.052847),
    Sketcher.Constraint("DistanceY", -1, 1, 22, 3, 42.052847),
    Sketcher.Constraint("DistanceY", -1, 1, 24, 3, 42.052847),
    Sketcher.Constraint("DistanceY", -1, 1, 26, 3, 42.052847),
    Sketcher.Constraint("DistanceY", -1, 1, 28, 3, 42.052847),
    Sketcher.Constraint("DistanceY", 44, 3, -1, 1, 24.622153),
    Sketcher.Constraint("DistanceY", 45, 3, -1, 1, 24.622153),
    Sketcher.Constraint("DistanceY", 46, 3, -1, 1, 15.097153),
    Sketcher.Constraint("DistanceY", 47, 3, -1, 1, 24.622153),
    Sketcher.Constraint("DistanceY", 48, 3, -1, 1, 5.572153),
    Sketcher.Constraint("DistanceY", 53, 3, -1, 1, 24.622153),
    Sketcher.Constraint("DistanceY", 54, 3, -1, 1, 24.622153),
    Sketcher.Constraint("DistanceY", 55, 3, -1, 1, 24.622153),
    Sketcher.Constraint("DistanceY", 56, 3, -1, 1, 15.097153),
    Sketcher.Constraint("DistanceY", 57, 3, -1, 1, 5.572153),
    Sketcher.Constraint("DistanceY", -1, 1, 58, 3, 3.952847),
    Sketcher.Constraint("DistanceY", -1, 1, 59, 3, 13.477847),
    Sketcher.Constraint("DistanceY", -1, 1, 60, 3, 23.002847),
    Sketcher.Constraint("DistanceY", -1, 1, 61, 3, 23.002847),
    Sketcher.Constraint("DistanceY", -1, 1, 62, 3, 32.527847),
    Sketcher.Constraint("DistanceY", -1, 1, 63, 3, 32.527847),
    Sketcher.Constraint("DistanceY", -1, 1, 64, 3, 23.002847),
    Sketcher.Constraint("DistanceY", -1, 1, 65, 3, 32.527847),
    Sketcher.Constraint("DistanceY", -1, 1, 66, 3, 3.952847),
    Sketcher.Constraint("DistanceY", -1, 1, 67, 3, 13.477847),
    Sketcher.Constraint("DistanceY", -1, 1, 68, 3, 23.002847),
    Sketcher.Constraint("DistanceY", -1, 1, 69, 3, 32.527847),
    Sketcher.Constraint("DistanceY", -1, 1, 70, 3, 32.527847),
    Sketcher.Constraint("DistanceY", -1, 1, 71, 3, 23.002847),
    Sketcher.Constraint("DistanceY", -1, 1, 72, 3, 23.002847),
    Sketcher.Constraint("DistanceY", -1, 1, 73, 3, 32.527847),
    Sketcher.Constraint("DistanceY", -1, 1, 74, 3, 32.527847),
    Sketcher.Constraint("DistanceY", -1, 1, 20, 1, 42.052847),
    Sketcher.Constraint("DistanceY", -1, 1, 22, 1, 42.052847),
    Sketcher.Constraint("DistanceY", -1, 1, 24, 1, 42.052847),
    Sketcher.Constraint("DistanceY", -1, 1, 26, 1, 42.052847),
    Sketcher.Constraint("DistanceX", 29, 2, -1, 1, 60.099957),
])
pad1 = body.newObject("PartDesign::Pad", "Pad")
pad1.Profile = sketch1
pad1.Length = Q("0.075 in")

doc.recompute()
